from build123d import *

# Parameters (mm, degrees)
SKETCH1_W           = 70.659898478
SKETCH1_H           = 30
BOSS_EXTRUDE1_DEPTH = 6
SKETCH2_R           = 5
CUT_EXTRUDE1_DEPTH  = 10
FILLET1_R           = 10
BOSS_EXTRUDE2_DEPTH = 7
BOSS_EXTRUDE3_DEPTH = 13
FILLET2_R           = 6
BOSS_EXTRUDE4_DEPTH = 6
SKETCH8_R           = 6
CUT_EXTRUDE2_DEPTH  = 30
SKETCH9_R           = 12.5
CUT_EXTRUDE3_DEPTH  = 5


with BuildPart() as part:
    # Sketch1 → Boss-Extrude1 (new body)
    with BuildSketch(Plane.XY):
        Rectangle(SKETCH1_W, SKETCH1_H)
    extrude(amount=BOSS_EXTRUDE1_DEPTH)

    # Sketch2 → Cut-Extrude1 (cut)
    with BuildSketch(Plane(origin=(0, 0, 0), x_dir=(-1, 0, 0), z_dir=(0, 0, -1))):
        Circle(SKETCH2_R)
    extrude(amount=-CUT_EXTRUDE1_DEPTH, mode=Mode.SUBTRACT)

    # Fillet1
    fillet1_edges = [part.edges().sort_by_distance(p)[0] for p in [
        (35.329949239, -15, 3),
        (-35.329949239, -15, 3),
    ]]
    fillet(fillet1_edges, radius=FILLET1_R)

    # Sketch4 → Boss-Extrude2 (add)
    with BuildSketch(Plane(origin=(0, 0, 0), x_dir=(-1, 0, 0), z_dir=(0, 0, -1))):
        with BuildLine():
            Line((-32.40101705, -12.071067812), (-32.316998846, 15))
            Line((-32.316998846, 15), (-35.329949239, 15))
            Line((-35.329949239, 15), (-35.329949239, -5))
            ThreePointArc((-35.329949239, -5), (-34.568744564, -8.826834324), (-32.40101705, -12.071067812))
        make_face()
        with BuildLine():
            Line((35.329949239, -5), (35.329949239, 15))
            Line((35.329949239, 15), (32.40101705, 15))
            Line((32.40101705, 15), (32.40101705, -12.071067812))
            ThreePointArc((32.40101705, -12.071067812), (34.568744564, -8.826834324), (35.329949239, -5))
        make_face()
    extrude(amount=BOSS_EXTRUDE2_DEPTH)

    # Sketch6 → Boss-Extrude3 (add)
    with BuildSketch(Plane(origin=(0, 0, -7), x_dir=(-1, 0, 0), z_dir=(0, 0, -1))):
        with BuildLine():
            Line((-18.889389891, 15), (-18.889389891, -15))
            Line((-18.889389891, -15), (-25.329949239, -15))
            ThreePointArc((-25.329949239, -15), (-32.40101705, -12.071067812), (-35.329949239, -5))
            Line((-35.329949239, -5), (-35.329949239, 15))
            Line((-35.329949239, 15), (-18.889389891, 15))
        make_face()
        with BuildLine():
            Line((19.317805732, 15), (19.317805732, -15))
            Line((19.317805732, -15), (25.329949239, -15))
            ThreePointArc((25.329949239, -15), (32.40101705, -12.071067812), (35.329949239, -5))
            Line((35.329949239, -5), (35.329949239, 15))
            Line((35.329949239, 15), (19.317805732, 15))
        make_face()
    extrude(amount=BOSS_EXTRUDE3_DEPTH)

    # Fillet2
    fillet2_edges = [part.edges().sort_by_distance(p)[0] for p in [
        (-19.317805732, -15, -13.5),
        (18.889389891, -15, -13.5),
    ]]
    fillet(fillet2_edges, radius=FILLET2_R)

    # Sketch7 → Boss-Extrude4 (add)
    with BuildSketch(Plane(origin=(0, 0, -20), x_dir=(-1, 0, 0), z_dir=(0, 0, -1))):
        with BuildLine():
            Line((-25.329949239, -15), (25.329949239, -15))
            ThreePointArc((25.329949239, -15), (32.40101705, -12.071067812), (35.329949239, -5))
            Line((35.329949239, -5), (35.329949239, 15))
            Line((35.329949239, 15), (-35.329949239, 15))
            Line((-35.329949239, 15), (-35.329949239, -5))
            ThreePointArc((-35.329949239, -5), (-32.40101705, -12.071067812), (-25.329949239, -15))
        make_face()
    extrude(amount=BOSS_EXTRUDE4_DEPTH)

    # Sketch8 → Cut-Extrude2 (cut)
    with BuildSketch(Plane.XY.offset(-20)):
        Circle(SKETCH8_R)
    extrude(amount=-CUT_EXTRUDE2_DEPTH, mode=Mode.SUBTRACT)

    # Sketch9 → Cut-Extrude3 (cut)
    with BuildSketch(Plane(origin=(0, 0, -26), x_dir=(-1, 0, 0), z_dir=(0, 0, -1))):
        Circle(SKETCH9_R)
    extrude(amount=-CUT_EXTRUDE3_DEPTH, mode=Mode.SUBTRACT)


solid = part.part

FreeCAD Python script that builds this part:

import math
import FreeCAD as App
import Part
import Sketcher


def edges_at(feature, points):
    """Names of the edges that pass closest to the given points."""
    edges = feature.Shape.Edges
    near = lambda p: min(range(len(edges)), key=lambda i: edges[i].distToShape(Part.Vertex(*p))[0])
    return sorted({f"Edge{near(p) + 1}" for p in points})

doc = App.newDocument("Part")
params = doc.addObject("Spreadsheet::Sheet", "Params")
for row, (alias, value) in enumerate([
    ("sketch1_height", "30 mm"),
    ("pad1_length", "6 mm"),
    ("sketch2_diameter", "10 mm"),
    ("pocket1_length", "10 mm"),
    ("fillet_radius", "10 mm"),
    ("sketch3_radius", "10 mm"),
    ("sketch3_height", "20 mm"),
    ("pad2_length", "7 mm"),
    ("sketch4_radius", "10 mm"),
    ("sketch4_height", "30 mm"),
    ("pad3_length", "13 mm"),
    ("fillet2_radius", "6 mm"),
    ("sketch5_radius", "10 mm"),
    ("sketch5_height", "20 mm"),
    ("pad4_length", "6 mm"),
    ("sketch6_diameter", "12 mm"),
    ("pocket2_length", "30 mm"),
    ("sketch7_diameter", "25 mm"),
    ("pocket3_length", "5 mm"),
], start=1):
    params.set(f"A{row}", alias)
    params.set(f"B{row}", "=" + value)
    params.setAlias(f"B{row}", alias)

body = doc.addObject("PartDesign::Body", "Body")

# Sketch on XY plane
sketch1 = body.newObject("Sketcher::SketchObject", "Sketch")
sketch1.AttachmentSupport = (doc.getObject("XY_Plane"), [""])
sketch1.MapMode = "FlatFace"
sketch1.addGeometry([
    Part.LineSegment(App.Vector(-35.329949, 15, 0), App.Vector(-35.329949, -15, 0)),
    Part.LineSegment(App.Vector(-35.329949, -15, 0), App.Vector(35.329949, -15, 0)),
    Part.LineSegment(App.Vector(35.329949, -15, 0), App.Vector(35.329949, 15, 0)),
    Part.LineSegment(App.Vector(35.329949, 15, 0), App.Vector(-35.329949, 15, 0)),
], False)
sketch1.addConstraint([
    Sketcher.Constraint("Coincident", 0, 2, 1, 1),
    Sketcher.Constraint("Coincident", 1, 2, 2, 1),
    Sketcher.Constraint("Coincident", 2, 2, 3, 1),
    Sketcher.Constraint("Coincident", 3, 2, 0, 1),
    Sketcher.Constraint("Vertical", 0),
    Sketcher.Constraint("Horizontal", 1),
    Sketcher.Constraint("Vertical", 2),
    Sketcher.Constraint("Horizontal", 3),
    Sketcher.Constraint("Symmetric", 0, 2, 2, 2, -1, 1),
    Sketcher.Constraint("DistanceY", 0, 2, 0, 1, 30.0),
    Sketcher.Constraint("DistanceX", 1, 1, 1, 2, 70.659898),
])
sketch1.setExpression("Constraints[9]", "Params.sketch1_height")
pad1 = body.newObject("PartDesign::Pad", "Pad")
pad1.Profile = sketch1
pad1.setExpression("Length", "Params.pad1_length")

# Sketch on XY plane
sketch2 = body.newObject("Sketcher::SketchObject", "Sketch001")
sketch2.AttachmentSupport = (doc.getObject("XY_Plane"), [""])
sketch2.MapMode = "FlatFace"
sketch2.addGeometry(Part.Circle(App.Vector(0, 0, 0), App.Vector(0, 0, 1), 5), False)
sketch2.addConstraint([
    Sketcher.Constraint("Coincident", 0, 3, -1, 1),
    Sketcher.Constraint("Diameter", 0, 10.0),
])
sketch2.setExpression("Constraints[1]", "Params.sketch2_diameter")
pocket1 = body.newObject("PartDesign::Pocket", "Pocket")
pocket1.Profile = sketch2
pocket1.setExpression("Length", "Params.pocket1_length")
pocket1.Reversed = True
doc.recompute()

fillet = body.newObject("PartDesign::Fillet", "Fillet")
fillet.Base = (pocket1, edges_at(pocket1, [(35.33, -15, 3), (-35.33, -15, 3)]))
fillet.setExpression("Radius", "Params.fillet_radius")

# Sketch on XY plane
sketch3 = body.newObject("Sketcher::SketchObject", "Sketch002")
sketch3.AttachmentSupport = (doc.getObject("XY_Plane"), [""])
sketch3.MapMode = "FlatFace"
sketch3.addGeometry([
    Part.LineSegment(App.Vector(32.401017, -12.071068, 0), App.Vector(32.316999, 15, 0)),  # 0
    Part.LineSegment(App.Vector(32.316999, 15, 0), App.Vector(35.329949, 15, 0)),  # 1
    Part.LineSegment(App.Vector(35.329949, 15, 0), App.Vector(35.329949, -5, 0)),  # 2
    Part.ArcOfCircle(Part.Circle(App.Vector(25.329949, -5, 0), App.Vector(0, 0, 1), 10), math.radians(-45), math.radians(0)),  # 3
    Part.LineSegment(App.Vector(-35.329949, -5, 0), App.Vector(-35.329949, 15, 0)),  # 4
    Part.LineSegment(App.Vector(-35.329949, 15, 0), App.Vector(-32.401017, 15, 0)),  # 5
    Part.LineSegment(App.Vector(-32.401017, 15, 0), App.Vector(-32.401017, -12.071068, 0)),  # 6
    Part.ArcOfCircle(Part.Circle(App.Vector(-25.329949, -5, 0), App.Vector(0, 0, 1), 10), math.radians(180), math.radians(225)),  # 7
], False)
sketch3.addConstraint([
    Sketcher.Constraint("Coincident", 0, 2, 1, 1),
    Sketcher.Constraint("Coincident", 1, 2, 2, 1),
    Sketcher.Constraint("Tangent", 2, 2, 3, 2),
    Sketcher.Constraint("Coincident", 3, 1, 0, 1),
    Sketcher.Constraint("Coincident", 4, 2, 5, 1),
    Sketcher.Constraint("Coincident", 5, 2, 6, 1),
    Sketcher.Constraint("Coincident", 6, 2, 7, 2),
    Sketcher.Constraint("Tangent", 7, 1, 4, 1),
    Sketcher.Constraint("Horizontal", 1),
    Sketcher.Constraint("Vertical", 2),
    Sketcher.Constraint("Vertical", 4),
    Sketcher.Constraint("Horizontal", 5),
    Sketcher.Constraint("Vertical", 6),
    Sketcher.Constraint("Equal", 3, 7),
    Sketcher.Constraint("Symmetric", 3, 3, 7, 3, -2),
    Sketcher.Constraint("Horizontal", 1, 2, 4, 2),
    Sketcher.Constraint("Horizontal", 3, 1, 6, 2),
    Sketcher.Constraint("Radius", 3, 10.0),
    Sketcher.Constraint("DistanceY", 2, 2, 2, 1, 20.0),
    Sketcher.Constraint("DistanceY", 3, 3, -1, 1, 5.0),
    Sketcher.Constraint("DistanceX", -1, 1, 0, 2, 32.316999),
    Sketcher.Constraint("Distance", 0, 27.071198),
    Sketcher.Constraint("DistanceX", 1, 1, 1, 2, 3.01295),
])
sketch3.setExpression("Constraints[17]", "Params.sketch3_radius")
sketch3.setExpression("Constraints[18]", "Params.sketch3_height")
pad2 = body.newObject("PartDesign::Pad", "Pad001")
pad2.Profile = sketch3
pad2.setExpression("Length", "Params.pad2_length")
pad2.Reversed = True

# Sketch on XY plane
sketch4 = body.newObject("Sketcher::SketchObject", "Sketch003")
sketch4.AttachmentSupport = (doc.getObject("XY_Plane"), [""])
sketch4.MapMode = "FlatFace"
sketch4.AttachmentOffset = App.Placement(App.Vector(0, 0, -7), App.Rotation())
sketch4.addGeometry([
    Part.LineSegment(App.Vector(18.88939, -15, 0), App.Vector(18.88939, 15, 0)),  # 0
    Part.LineSegment(App.Vector(18.88939, 15, 0), App.Vector(35.329949, 15, 0)),  # 1
    Part.LineSegment(App.Vector(35.329949, 15, 0), App.Vector(35.329949, -5, 0)),  # 2
    Part.ArcOfCircle(Part.Circle(App.Vector(25.329949, -5, 0), App.Vector(0, 0, 1), 10), math.radians(-90), math.radians(0)),  # 3
    Part.LineSegment(App.Vector(25.329949, -15, 0), App.Vector(18.88939, -15, 0)),  # 4
    Part.LineSegment(App.Vector(-19.317806, 15, 0), App.Vector(-19.317806, -15, 0)),  # 5
    Part.LineSegment(App.Vector(-19.317806, -15, 0), App.Vector(-25.329949, -15, 0)),  # 6
    Part.ArcOfCircle(Part.Circle(App.Vector(-25.329949, -5, 0), App.Vector(0, 0, 1), 10), math.radians(-180), math.radians(-90)),  # 7
    Part.LineSegment(App.Vector(-35.329949, -5, 0), App.Vector(-35.329949, 15, 0)),  # 8
    Part.LineSegment(App.Vector(-35.329949, 15, 0), App.Vector(-19.317806, 15, 0)),  # 9
], False)
sketch4.addConstraint([
    Sketcher.Constraint("Coincident", 0, 2, 1, 1),
    Sketcher.Constraint("Coincident", 1, 2, 2, 1),
    Sketcher.Constraint("Tangent", 2, 2, 3, 2),
    Sketcher.Constraint("Tangent", 3, 1, 4, 1),
    Sketcher.Constraint("Coincident", 4, 2, 0, 1),
    Sketcher.Constraint("Coincident", 5, 2, 6, 1),
    Sketcher.Constraint("Tangent", 6, 2, 7, 2),
    Sketcher.Constraint("Tangent", 7, 1, 8, 1),
    Sketcher.Constraint("Coincident", 8, 2, 9, 1),
    Sketcher.Constraint("Coincident", 9, 2, 5, 1),
    Sketcher.Constraint("Vertical", 0),
    Sketcher.Constraint("Horizontal", 1),
    Sketcher.Constraint("Vertical", 2),
    Sketcher.Constraint("Horizontal", 4),
    Sketcher.Constraint("Vertical", 5),
    Sketcher.Constraint("Horizontal", 6),
    Sketcher.Constraint("Vertical", 8),
    Sketcher.Constraint("Horizontal", 9),
    Sketcher.Constraint("Equal", 3, 7),
    Sketcher.Constraint("Symmetric", 3, 3, 7, 3, -2),
    Sketcher.Constraint("Horizontal", 1, 2, 8, 2),
    Sketcher.Constraint("Radius", 3, 10.0),
    Sketcher.Constraint("DistanceY", 0, 1, 0, 2, 30.0),
    Sketcher.Constraint("DistanceY", 3, 3, -1, 1, 5.0),
    Sketcher.Constraint("DistanceX", 1, 1, 1, 2, 16.440559),
    Sketcher.Constraint("DistanceX", 7, 3, 3, 3, 50.659898),
    Sketcher.Constraint("DistanceX", 6, 2, 6, 1, 6.012144),
])
sketch4.setExpression("Constraints[21]", "Params.sketch4_radius")
sketch4.setExpression("Constraints[22]", "Params.sketch4_height")
pad3 = body.newObject("PartDesign::Pad", "Pad002")
pad3.Profile = sketch4
pad3.setExpression("Length", "Params.pad3_length")
pad3.Reversed = True
doc.recompute()

fillet2 = body.newObject("PartDesign::Fillet", "Fillet001")
fillet2.Base = (pad3, edges_at(pad3, [(-19.318, -15, -13.5), (18.889, -15, -13.5)]))
fillet2.setExpression("Radius", "Params.fillet2_radius")

# Sketch on XY plane
sketch5 = body.newObject("Sketcher::SketchObject", "Sketch004")
sketch5.AttachmentSupport = (doc.getObject("XY_Plane"), [""])
sketch5.MapMode = "FlatFace"
sketch5.AttachmentOffset = App.Placement(App.Vector(0, 0, -20), App.Rotation())
sketch5.addGeometry([
    Part.LineSegment(App.Vector(25.329949, -15, 0), App.Vector(-25.329949, -15, 0)),  # 0
    Part.ArcOfCircle(Part.Circle(App.Vector(-25.329949, -5, 0), App.Vector(0, 0, 1), 10), math.radians(-180), math.radians(-90)),  # 1
    Part.LineSegment(App.Vector(-35.329949, -5, 0), App.Vector(-35.329949, 15, 0)),  # 2
    Part.LineSegment(App.Vector(-35.329949, 15, 0), App.Vector(35.329949, 15, 0)),  # 3
    Part.LineSegment(App.Vector(35.329949, 15, 0), App.Vector(35.329949, -5, 0)),  # 4
    Part.ArcOfCircle(Part.Circle(App.Vector(25.329949, -5, 0), App.Vector(0, 0, 1), 10), math.radians(-90), math.radians(0)),  # 5
], False)
sketch5.addConstraint([
    Sketcher.Constraint("Tangent", 0, 2, 1, 2),
    Sketcher.Constraint("Tangent", 1, 1, 2, 1),
    Sketcher.Constraint("Coincident", 2, 2, 3, 1),
    Sketcher.Constraint("Coincident", 3, 2, 4, 1),
    Sketcher.Constraint("Tangent", 4, 2, 5, 2),
    Sketcher.Constraint("Tangent", 5, 1, 0, 1),
    Sketcher.Constraint("Horizontal", 0),
    Sketcher.Constraint("Vertical", 2),
    Sketcher.Constraint("Horizontal", 3),
    Sketcher.Constraint("Vertical", 4),
    Sketcher.Constraint("Equal", 1, 5),
    Sketcher.Constraint("Radius", 1, 10.0),
    Sketcher.Constraint("DistanceY", 2, 1, 2, 2, 20.0),
    Sketcher.Constraint("DistanceY", 1, 3, -1, 1, 5.0),
    Sketcher.Constraint("DistanceX", 0, 2, 0, 1, 50.659898),
    Sketcher.Constraint("DistanceX", 1, 3, -1, 1, 25.329949),
])
sketch5.setExpression("Constraints[11]", "Params.sketch5_radius")
sketch5.setExpression("Constraints[12]", "Params.sketch5_height")
pad4 = body.newObject("PartDesign::Pad", "Pad003")
pad4.Profile = sketch5
pad4.setExpression("Length", "Params.pad4_length")
pad4.Reversed = True

# Sketch on XY plane
sketch6 = body.newObject("Sketcher::SketchObject", "Sketch005")
sketch6.AttachmentSupport = (doc.getObject("XY_Plane"), [""])
sketch6.MapMode = "FlatFace"
sketch6.AttachmentOffset = App.Placement(App.Vector(0, 0, -20), App.Rotation())
sketch6.addGeometry(Part.Circle(App.Vector(0, 0, 0), App.Vector(0, 0, 1), 6), False)
sketch6.addConstraint([
    Sketcher.Constraint("Coincident", 0, 3, -1, 1),
    Sketcher.Constraint("Diameter", 0, 12.0),
])
sketch6.setExpression("Constraints[1]", "Params.sketch6_diameter")
pocket2 = body.newObject("PartDesign::Pocket", "Pocket001")
pocket2.Profile = sketch6
pocket2.setExpression("Length", "Params.pocket2_length")

# Sketch on XY plane
sketch7 = body.newObject("Sketcher::SketchObject", "Sketch006")
sketch7.AttachmentSupport = (doc.getObject("XY_Plane"), [""])
sketch7.MapMode = "FlatFace"
sketch7.AttachmentOffset = App.Placement(App.Vector(0, 0, -26), App.Rotation())
sketch7.addGeometry(Part.Circle(App.Vector(0, 0, 0), App.Vector(0, 0, 1), 12.5), False)
sketch7.addConstraint([
    Sketcher.Constraint("Coincident", 0, 3, -1, 1),
    Sketcher.Constraint("Diameter", 0, 25.0),
])
sketch7.setExpression("Constraints[1]", "Params.sketch7_diameter")
pocket3 = body.newObject("PartDesign::Pocket", "Pocket002")
pocket3.Profile = sketch7
pocket3.setExpression("Length", "Params.pocket3_length")
pocket3.Reversed = True

doc.recompute()
